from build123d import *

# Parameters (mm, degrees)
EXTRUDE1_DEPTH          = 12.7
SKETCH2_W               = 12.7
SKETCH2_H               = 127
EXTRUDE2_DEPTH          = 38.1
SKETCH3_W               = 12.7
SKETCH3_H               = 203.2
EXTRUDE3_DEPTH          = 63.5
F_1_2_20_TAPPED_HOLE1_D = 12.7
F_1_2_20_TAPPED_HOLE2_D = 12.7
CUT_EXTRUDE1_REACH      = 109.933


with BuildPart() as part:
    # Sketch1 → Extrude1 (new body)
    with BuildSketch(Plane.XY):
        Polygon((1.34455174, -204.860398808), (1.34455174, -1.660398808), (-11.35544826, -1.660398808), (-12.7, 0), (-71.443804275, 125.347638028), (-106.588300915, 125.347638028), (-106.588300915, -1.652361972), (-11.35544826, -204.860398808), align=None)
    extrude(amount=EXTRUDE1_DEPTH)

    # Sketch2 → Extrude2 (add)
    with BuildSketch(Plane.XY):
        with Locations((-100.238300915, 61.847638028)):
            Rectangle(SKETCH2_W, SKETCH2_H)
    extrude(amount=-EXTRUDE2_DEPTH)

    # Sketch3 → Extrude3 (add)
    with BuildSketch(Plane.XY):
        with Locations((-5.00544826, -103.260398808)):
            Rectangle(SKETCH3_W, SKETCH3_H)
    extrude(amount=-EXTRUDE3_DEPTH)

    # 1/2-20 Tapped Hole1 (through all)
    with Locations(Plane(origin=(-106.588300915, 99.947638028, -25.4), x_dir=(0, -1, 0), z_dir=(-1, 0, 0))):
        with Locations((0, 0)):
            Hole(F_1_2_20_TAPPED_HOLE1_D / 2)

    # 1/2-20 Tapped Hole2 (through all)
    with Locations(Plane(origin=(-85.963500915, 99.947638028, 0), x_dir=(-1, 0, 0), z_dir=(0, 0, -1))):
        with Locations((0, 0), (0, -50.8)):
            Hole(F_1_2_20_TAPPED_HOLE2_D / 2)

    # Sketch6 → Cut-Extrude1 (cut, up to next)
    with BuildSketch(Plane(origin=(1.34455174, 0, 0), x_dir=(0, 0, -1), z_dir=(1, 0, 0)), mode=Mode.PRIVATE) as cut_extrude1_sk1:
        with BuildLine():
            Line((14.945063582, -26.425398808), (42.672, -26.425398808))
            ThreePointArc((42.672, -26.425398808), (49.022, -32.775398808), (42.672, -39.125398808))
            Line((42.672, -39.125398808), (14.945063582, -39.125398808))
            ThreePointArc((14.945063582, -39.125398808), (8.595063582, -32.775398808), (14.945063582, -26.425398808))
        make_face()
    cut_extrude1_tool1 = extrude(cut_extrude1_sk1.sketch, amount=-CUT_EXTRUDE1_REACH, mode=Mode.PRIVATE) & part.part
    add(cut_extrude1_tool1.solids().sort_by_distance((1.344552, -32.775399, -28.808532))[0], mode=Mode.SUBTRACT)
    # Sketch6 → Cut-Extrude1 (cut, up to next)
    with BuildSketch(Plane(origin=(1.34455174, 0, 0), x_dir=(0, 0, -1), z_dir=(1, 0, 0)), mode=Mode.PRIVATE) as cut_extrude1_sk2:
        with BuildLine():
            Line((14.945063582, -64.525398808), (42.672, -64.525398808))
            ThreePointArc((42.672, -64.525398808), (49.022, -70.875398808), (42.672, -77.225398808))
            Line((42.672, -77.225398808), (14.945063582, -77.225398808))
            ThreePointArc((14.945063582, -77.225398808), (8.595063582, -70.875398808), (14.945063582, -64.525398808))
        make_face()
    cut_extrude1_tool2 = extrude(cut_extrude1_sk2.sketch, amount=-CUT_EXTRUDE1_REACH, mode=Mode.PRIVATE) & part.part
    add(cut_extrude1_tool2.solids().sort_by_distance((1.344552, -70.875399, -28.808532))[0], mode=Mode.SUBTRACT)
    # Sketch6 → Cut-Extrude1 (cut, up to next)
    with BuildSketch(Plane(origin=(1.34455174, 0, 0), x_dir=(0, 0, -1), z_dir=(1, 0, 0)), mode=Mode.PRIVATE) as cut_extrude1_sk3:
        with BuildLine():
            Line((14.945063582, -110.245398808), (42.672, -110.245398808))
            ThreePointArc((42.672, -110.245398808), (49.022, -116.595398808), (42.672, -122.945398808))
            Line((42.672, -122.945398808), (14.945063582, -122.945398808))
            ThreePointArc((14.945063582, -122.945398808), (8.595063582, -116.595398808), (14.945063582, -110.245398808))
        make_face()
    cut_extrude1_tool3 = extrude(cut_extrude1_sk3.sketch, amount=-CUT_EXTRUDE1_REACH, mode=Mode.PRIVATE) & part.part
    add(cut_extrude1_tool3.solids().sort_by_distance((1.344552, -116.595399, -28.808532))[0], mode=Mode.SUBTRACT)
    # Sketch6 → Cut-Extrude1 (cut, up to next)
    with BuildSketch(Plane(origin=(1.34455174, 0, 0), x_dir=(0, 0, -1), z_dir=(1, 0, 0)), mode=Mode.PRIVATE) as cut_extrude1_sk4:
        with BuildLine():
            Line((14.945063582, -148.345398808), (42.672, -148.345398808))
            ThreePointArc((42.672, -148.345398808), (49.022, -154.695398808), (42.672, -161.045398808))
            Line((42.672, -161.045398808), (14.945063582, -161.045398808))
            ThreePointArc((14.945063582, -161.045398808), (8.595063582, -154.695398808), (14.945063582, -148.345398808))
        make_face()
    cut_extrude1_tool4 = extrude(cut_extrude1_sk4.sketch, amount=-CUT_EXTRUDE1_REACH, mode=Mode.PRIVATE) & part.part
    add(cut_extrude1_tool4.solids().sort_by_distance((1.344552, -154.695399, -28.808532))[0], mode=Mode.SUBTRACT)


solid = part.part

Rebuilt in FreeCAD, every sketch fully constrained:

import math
import FreeCAD as App
import Part
import Sketcher
from FreeCAD import Vector
Q = App.Units.Quantity

doc = App.newDocument("Part")
body = doc.addObject("PartDesign::Body", "Body")

sketch1 = body.newObject("Sketcher::SketchObject", "Sketch")
sketch1.AttachmentSupport = (doc.getObject("XY_Plane"), [""])
sketch1.MapMode = "FlatFace"
sketch1.addGeometry(Part.LineSegment(Vector(1.3, -204.9, 0), Vector(1.3, -1.7, 0)), False)
sketch1.addGeometry(Part.LineSegment(Vector(1.3, -1.7, 0), Vector(-11.4, -1.7, 0)), False)
sketch1.addGeometry(Part.LineSegment(Vector(-11.4, -1.7, 0), Vector(-12.7, 0, 0)), False)
sketch1.addGeometry(Part.LineSegment(Vector(-12.7, 0, 0), Vector(-71.4, 125.3, 0)), False)
sketch1.addGeometry(Part.LineSegment(Vector(-71.4, 125.3, 0), Vector(-106.6, 125.3, 0)), False)
sketch1.addGeometry(Part.LineSegment(Vector(-106.6, 125.3, 0), Vector(-106.6, -1.7, 0)), False)
sketch1.addGeometry(Part.LineSegment(Vector(-106.6, -1.7, 0), Vector(-11.4, -204.9, 0)), False)
sketch1.addGeometry(Part.LineSegment(Vector(-11.4, -204.9, 0), Vector(1.3, -204.9, 0)), False)
sketch1.addConstraint(Sketcher.Constraint("Coincident", 0, 2, 1, 1))
sketch1.addConstraint(Sketcher.Constraint("Coincident", 1, 2, 2, 1))
sketch1.addConstraint(Sketcher.Constraint("Coincident", 2, 2, 3, 1))
sketch1.addConstraint(Sketcher.Constraint("Coincident", 3, 2, 4, 1))
sketch1.addConstraint(Sketcher.Constraint("Coincident", 4, 2, 5, 1))
sketch1.addConstraint(Sketcher.Constraint("Coincident", 5, 2, 6, 1))
sketch1.addConstraint(Sketcher.Constraint("Coincident", 6, 2, 7, 1))
sketch1.addConstraint(Sketcher.Constraint("Coincident", 7, 2, 0, 1))
sketch1.addConstraint(Sketcher.Constraint("Vertical", 0))
sketch1.addConstraint(Sketcher.Constraint("Horizontal", 1))
sketch1.addConstraint(Sketcher.Constraint("Horizontal", 4))
sketch1.addConstraint(Sketcher.Constraint("Vertical", 5))
sketch1.addConstraint(Sketcher.Constraint("Horizontal", 7))
sketch1.addConstraint(Sketcher.Constraint("PointOnObject", 2, 2, -1))
sketch1.addConstraint(Sketcher.Constraint("Parallel", 3, 6))
sketch1.addConstraint(Sketcher.Constraint("Vertical", 1, 2, 6, 2))
sketch1.addConstraint(Sketcher.Constraint("DistanceY", 0, 1, 0, 2, Q("8 in")))
sketch1.addConstraint(Sketcher.Constraint("DistanceY", 5, 2, 5, 1, Q("5 in")))
sketch1.addConstraint(Sketcher.Constraint("DistanceX", 1, 2, 1, 1, Q("0.5 in")))
sketch1.addConstraint(Sketcher.Constraint("DistanceX", 2, 2, -1, 1, Q("0.5 in")))
sketch1.addConstraint(Sketcher.Constraint("Distance", 3, Q("5.45 in")))
sketch1.addConstraint(Sketcher.Constraint("Angle", 3, Q("115.11 deg")))
sketch1.addConstraint(Sketcher.Constraint("DistanceY", 0, 2, -1, 1, 1.660399))
sketch1.addConstraint(Sketcher.Constraint("DistanceX", 4, 2, -1, 1, 106.588301))
pad1 = body.newObject("PartDesign::Pad", "Pad")
pad1.Profile = sketch1
pad1.Length = Q("0.5 in")

sketch2 = body.newObject("Sketcher::SketchObject", "Sketch001")
sketch2.AttachmentSupport = (doc.getObject("XY_Plane"), [""])
sketch2.MapMode = "FlatFace"
sketch2.addGeometry(Part.LineSegment(Vector(-107, 125, 0), Vector(-107, -2, 0)), False)
sketch2.addGeometry(Part.LineSegment(Vector(-107, -2, 0), Vector(-94, -2, 0)), False)
sketch2.addGeometry(Part.LineSegment(Vector(-94, -2, 0), Vector(-94, 125, 0)), False)
sketch2.addGeometry(Part.LineSegment(Vector(-94, 125, 0), Vector(-107, 125, 0)), False)
sketch2.addConstraint(Sketcher.Constraint("Coincident", 0, 2, 1, 1))
sketch2.addConstraint(Sketcher.Constraint("Coincident", 1, 2, 2, 1))
sketch2.addConstraint(Sketcher.Constraint("Coincident", 2, 2, 3, 1))
sketch2.addConstraint(Sketcher.Constraint("Coincident", 3, 2, 0, 1))
sketch2.addConstraint(Sketcher.Constraint("Vertical", 0))
sketch2.addConstraint(Sketcher.Constraint("Horizontal", 1))
sketch2.addConstraint(Sketcher.Constraint("Vertical", 2))
sketch2.addConstraint(Sketcher.Constraint("Horizontal", 3))
sketch2.addConstraint(Sketcher.Constraint("DistanceY", 0, 2, 0, 1, Q("5 in")))
sketch2.addConstraint(Sketcher.Constraint("DistanceX", 1, 1, 1, 2, Q("0.5 in")))
sketch2.addConstraint(Sketcher.Constraint("DistanceX", 0, 2, -1, 1, 106.588301))
sketch2.addConstraint(Sketcher.Constraint("DistanceY", 0, 2, -1, 1, 1.652362))
pad2 = body.newObject("PartDesign::Pad", "Pad001")
pad2.Profile = sketch2
pad2.Length = Q("1.5 in")
pad2.Reversed = True

sketch3 = body.newObject("Sketcher::SketchObject", "Sketch002")
sketch3.AttachmentSupport = (doc.getObject("XY_Plane"), [""])
sketch3.MapMode = "FlatFace"
sketch3.addGeometry(Part.LineSegment(Vector(-11, -2, 0), Vector(-11, -205, 0)), False)
sketch3.addGeometry(Part.LineSegment(Vector(-11, -205, 0), Vector(1, -205, 0)), False)
sketch3.addGeometry(Part.LineSegment(Vector(1, -205, 0), Vector(1, -2, 0)), False)
sketch3.addGeometry(Part.LineSegment(Vector(1, -2, 0), Vector(-11, -2, 0)), False)
sketch3.addConstraint(Sketcher.Constraint("Coincident", 0, 2, 1, 1))
sketch3.addConstraint(Sketcher.Constraint("Coincident", 1, 2, 2, 1))
sketch3.addConstraint(Sketcher.Constraint("Coincident", 2, 2, 3, 1))
sketch3.addConstraint(Sketcher.Constraint("Coincident", 3, 2, 0, 1))
sketch3.addConstraint(Sketcher.Constraint("Vertical", 0))
sketch3.addConstraint(Sketcher.Constraint("Horizontal", 1))
sketch3.addConstraint(Sketcher.Constraint("Vertical", 2))
sketch3.addConstraint(Sketcher.Constraint("Horizontal", 3))
sketch3.addConstraint(Sketcher.Constraint("DistanceY", 0, 2, 0, 1, Q("8 in")))
sketch3.addConstraint(Sketcher.Constraint("DistanceX", 1, 1, 1, 2, Q("0.5 in")))
sketch3.addConstraint(Sketcher.Constraint("DistanceY", 0, 2, -1, 1, 204.860399))
sketch3.addConstraint(Sketcher.Constraint("DistanceX", 0, 2, -1, 1, 11.355448))
pad3 = body.newObject("PartDesign::Pad", "Pad002")
pad3.Profile = sketch3
pad3.Length = Q("2.5 in")
pad3.Reversed = True

sketch4 = body.newObject("Sketcher::SketchObject", "Sketch003")
sketch4.AttachmentSupport = (doc.getObject("YZ_Plane"), [""])
sketch4.MapMode = "FlatFace"
sketch4.AttachmentOffset = App.Placement(Vector(0, 0, -106.588301), App.Rotation())
sketch4.addGeometry(Part.Circle(Vector(100, -25, 0), Vector(0, 0, 1), 6), False)
sketch4.addConstraint(Sketcher.Constraint("Diameter", 0, Q("0.5 in")))
sketch4.addConstraint(Sketcher.Constraint("DistanceY", 0, 3, -1, 1, Q("1 in")))
sketch4.addConstraint(Sketcher.Constraint("DistanceX", -1, 1, 0, 3, 99.947638))
doc.recompute()
hole = body.newObject("PartDesign::Hole", "Hole")
hole.Profile = sketch4
hole.ThreadType = "None"
hole.Diameter = Q("0.5 in")
hole.DepthType = "ThroughAll"
hole.Reversed = True

sketch5 = body.newObject("Sketcher::SketchObject", "Sketch004")
sketch5.AttachmentSupport = (doc.getObject("XY_Plane"), [""])
sketch5.MapMode = "FlatFace"
sketch5.addGeometry(Part.Circle(Vector(-86, 100, 0), Vector(0, 0, 1), 6), False)
sketch5.addGeometry(Part.Circle(Vector(-86, 49, 0), Vector(0, 0, 1), 6), False)
sketch5.addConstraint(Sketcher.Constraint("Equal", 0, 1))
sketch5.addConstraint(Sketcher.Constraint("Vertical", 0, 3, 1, 3))
sketch5.addConstraint(Sketcher.Constraint("Diameter", 0, Q("0.5 in")))
sketch5.addConstraint(Sketcher.Constraint("DistanceY", 1, 3, 0, 3, Q("2 in")))
sketch5.addConstraint(Sketcher.Constraint("DistanceX", 0, 3, -1, 1, 85.963501))
sketch5.addConstraint(Sketcher.Constraint("DistanceY", -1, 1, 0, 3, 99.947638))
doc.recompute()
hole2 = body.newObject("PartDesign::Hole", "Hole001")
hole2.Profile = sketch5
hole2.ThreadType = "None"
hole2.Diameter = Q("0.5 in")
hole2.DepthType = "ThroughAll"
hole2.Reversed = True

sketch6 = body.newObject("Sketcher::SketchObject", "Sketch005")
sketch6.AttachmentSupport = (doc.getObject("YZ_Plane"), [""])
sketch6.MapMode = "FlatFace"
sketch6.AttachmentOffset = App.Placement(Vector(0, 0, 1.344552), App.Rotation())
sketch6.addGeometry(Part.LineSegment(Vector(-26, -43, 0), Vector(-26, -15, 0)), False)
sketch6.addGeometry(Part.ArcOfCircle(Part.Circle(Vector(-33, -15, 0), Vector(0, 0, 1), 6), math.radians(0), math.radians(180)), False)
sketch6.addGeometry(Part.LineSegment(Vector(-39, -15, 0), Vector(-39, -43, 0)), False)
sketch6.addGeometry(Part.ArcOfCircle(Part.Circle(Vector(-33, -43, 0), Vector(0, 0, 1), 6), math.radians(180), math.radians(360)), False)
sketch6.addConstraint(Sketcher.Constraint("Tangent", 0, 2, 1, 1))
sketch6.addConstraint(Sketcher.Constraint("Tangent", 1, 2, 2, 1))
sketch6.addConstraint(Sketcher.Constraint("Tangent", 2, 2, 3, 1))
sketch6.addConstraint(Sketcher.Constraint("Tangent", 3, 2, 0, 1))
sketch6.addConstraint(Sketcher.Constraint("Vertical", 0))
sketch6.addConstraint(Sketcher.Constraint("Vertical", 2))
sketch6.addConstraint(Sketcher.Constraint("Radius", 1, Q("0.25 in")))
sketch6.addConstraint(Sketcher.Constraint("DistanceY", 3, 3, -1, 1, Q("1.68 in")))
sketch6.addConstraint(Sketcher.Constraint("DistanceX", 1, 3, -1, 1, 32.775399))
sketch6.addConstraint(Sketcher.Constraint("DistanceY", 0, 1, 0, 2, 27.726936))
pocket1 = body.newObject("PartDesign::Pocket", "Pocket")
pocket1.Profile = sketch6
pocket1.Type = "UpToFirst"

sketch7 = body.newObject("Sketcher::SketchObject", "Sketch006")
sketch7.AttachmentSupport = (doc.getObject("YZ_Plane"), [""])
sketch7.MapMode = "FlatFace"
sketch7.AttachmentOffset = App.Placement(Vector(0, 0, 1.344552), App.Rotation())
sketch7.addGeometry(Part.LineSegment(Vector(-65, -43, 0), Vector(-65, -15, 0)), False)
sketch7.addGeometry(Part.ArcOfCircle(Part.Circle(Vector(-71, -15, 0), Vector(0, 0, 1), 6), math.radians(0), math.radians(180)), False)
sketch7.addGeometry(Part.LineSegment(Vector(-77, -15, 0), Vector(-77, -43, 0)), False)
sketch7.addGeometry(Part.ArcOfCircle(Part.Circle(Vector(-71, -43, 0), Vector(0, 0, 1), 6), math.radians(180), math.radians(360)), False)
sketch7.addConstraint(Sketcher.Constraint("Tangent", 0, 2, 1, 1))
sketch7.addConstraint(Sketcher.Constraint("Tangent", 1, 2, 2, 1))
sketch7.addConstraint(Sketcher.Constraint("Tangent", 2, 2, 3, 1))
sketch7.addConstraint(Sketcher.Constraint("Tangent", 3, 2, 0, 1))
sketch7.addConstraint(Sketcher.Constraint("Vertical", 0))
sketch7.addConstraint(Sketcher.Constraint("Vertical", 2))
sketch7.addConstraint(Sketcher.Constraint("Radius", 1, Q("0.25 in")))
sketch7.addConstraint(Sketcher.Constraint("DistanceY", 3, 3, -1, 1, Q("1.68 in")))
sketch7.addConstraint(Sketcher.Constraint("DistanceX", 1, 3, -1, 1, 70.875399))
sketch7.addConstraint(Sketcher.Constraint("DistanceY", 0, 1, 0, 2, 27.726936))
pocket2 = body.newObject("PartDesign::Pocket", "Pocket001")
pocket2.Profile = sketch7
pocket2.Type = "UpToFirst"

sketch8 = body.newObject("Sketcher::SketchObject", "Sketch007")
sketch8.AttachmentSupport = (doc.getObject("YZ_Plane"), [""])
sketch8.MapMode = "FlatFace"
sketch8.AttachmentOffset = App.Placement(Vector(0, 0, 1.344552), App.Rotation())
sketch8.addGeometry(Part.LineSegment(Vector(-110, -43, 0), Vector(-110, -15, 0)), False)
sketch8.addGeometry(Part.ArcOfCircle(Part.Circle(Vector(-117, -15, 0), Vector(0, 0, 1), 6), math.radians(0), math.radians(180)), False)
sketch8.addGeometry(Part.LineSegment(Vector(-123, -15, 0), Vector(-123, -43, 0)), False)
sketch8.addGeometry(Part.ArcOfCircle(Part.Circle(Vector(-117, -43, 0), Vector(0, 0, 1), 6), math.radians(180), math.radians(360)), False)
sketch8.addConstraint(Sketcher.Constraint("Tangent", 0, 2, 1, 1))
sketch8.addConstraint(Sketcher.Constraint("Tangent", 1, 2, 2, 1))
sketch8.addConstraint(Sketcher.Constraint("Tangent", 2, 2, 3, 1))
sketch8.addConstraint(Sketcher.Constraint("Tangent", 3, 2, 0, 1))
sketch8.addConstraint(Sketcher.Constraint("Vertical", 0))
sketch8.addConstraint(Sketcher.Constraint("Vertical", 2))
sketch8.addConstraint(Sketcher.Constraint("Radius", 1, Q("0.25 in")))
sketch8.addConstraint(Sketcher.Constraint("DistanceY", 3, 3, -1, 1, Q("1.68 in")))
sketch8.addConstraint(Sketcher.Constraint("DistanceX", 1, 3, -1, 1, 116.595399))
sketch8.addConstraint(Sketcher.Constraint("DistanceY", 0, 1, 0, 2, 27.726936))
pocket3 = body.newObject("PartDesign::Pocket", "Pocket002")
pocket3.Profile = sketch8
pocket3.Type = "UpToFirst"

sketch9 = body.newObject("Sketcher::SketchObject", "Sketch008")
sketch9.AttachmentSupport = (doc.getObject("YZ_Plane"), [""])
sketch9.MapMode = "FlatFace"
sketch9.AttachmentOffset = App.Placement(Vector(0, 0, 1.344552), App.Rotation())
sketch9.addGeometry(Part.LineSegment(Vector(-148, -43, 0), Vector(-148, -15, 0)), False)
sketch9.addGeometry(Part.ArcOfCircle(Part.Circle(Vector(-155, -15, 0), Vector(0, 0, 1), 6), math.radians(0), math.radians(180)), False)
sketch9.addGeometry(Part.LineSegment(Vector(-161, -15, 0), Vector(-161, -43, 0)), False)
sketch9.addGeometry(Part.ArcOfCircle(Part.Circle(Vector(-155, -43, 0), Vector(0, 0, 1), 6), math.radians(180), math.radians(360)), False)
sketch9.addConstraint(Sketcher.Constraint("Tangent", 0, 2, 1, 1))
sketch9.addConstraint(Sketcher.Constraint("Tangent", 1, 2, 2, 1))
sketch9.addConstraint(Sketcher.Constraint("Tangent", 2, 2, 3, 1))
sketch9.addConstraint(Sketcher.Constraint("Tangent", 3, 2, 0, 1))
sketch9.addConstraint(Sketcher.Constraint("Vertical", 0))
sketch9.addConstraint(Sketcher.Constraint("Vertical", 2))
sketch9.addConstraint(Sketcher.Constraint("Radius", 1, Q("0.25 in")))
sketch9.addConstraint(Sketcher.Constraint("DistanceY", 3, 3, -1, 1, Q("1.68 in")))
sketch9.addConstraint(Sketcher.Constraint("DistanceX", 1, 3, -1, 1, 154.695399))
sketch9.addConstraint(Sketcher.Constraint("DistanceY", 0, 1, 0, 2, 27.726936))
pocket4 = body.newObject("PartDesign::Pocket", "Pocket003")
pocket4.Profile = sketch9
pocket4.Type = "UpToFirst"

doc.recompute()
